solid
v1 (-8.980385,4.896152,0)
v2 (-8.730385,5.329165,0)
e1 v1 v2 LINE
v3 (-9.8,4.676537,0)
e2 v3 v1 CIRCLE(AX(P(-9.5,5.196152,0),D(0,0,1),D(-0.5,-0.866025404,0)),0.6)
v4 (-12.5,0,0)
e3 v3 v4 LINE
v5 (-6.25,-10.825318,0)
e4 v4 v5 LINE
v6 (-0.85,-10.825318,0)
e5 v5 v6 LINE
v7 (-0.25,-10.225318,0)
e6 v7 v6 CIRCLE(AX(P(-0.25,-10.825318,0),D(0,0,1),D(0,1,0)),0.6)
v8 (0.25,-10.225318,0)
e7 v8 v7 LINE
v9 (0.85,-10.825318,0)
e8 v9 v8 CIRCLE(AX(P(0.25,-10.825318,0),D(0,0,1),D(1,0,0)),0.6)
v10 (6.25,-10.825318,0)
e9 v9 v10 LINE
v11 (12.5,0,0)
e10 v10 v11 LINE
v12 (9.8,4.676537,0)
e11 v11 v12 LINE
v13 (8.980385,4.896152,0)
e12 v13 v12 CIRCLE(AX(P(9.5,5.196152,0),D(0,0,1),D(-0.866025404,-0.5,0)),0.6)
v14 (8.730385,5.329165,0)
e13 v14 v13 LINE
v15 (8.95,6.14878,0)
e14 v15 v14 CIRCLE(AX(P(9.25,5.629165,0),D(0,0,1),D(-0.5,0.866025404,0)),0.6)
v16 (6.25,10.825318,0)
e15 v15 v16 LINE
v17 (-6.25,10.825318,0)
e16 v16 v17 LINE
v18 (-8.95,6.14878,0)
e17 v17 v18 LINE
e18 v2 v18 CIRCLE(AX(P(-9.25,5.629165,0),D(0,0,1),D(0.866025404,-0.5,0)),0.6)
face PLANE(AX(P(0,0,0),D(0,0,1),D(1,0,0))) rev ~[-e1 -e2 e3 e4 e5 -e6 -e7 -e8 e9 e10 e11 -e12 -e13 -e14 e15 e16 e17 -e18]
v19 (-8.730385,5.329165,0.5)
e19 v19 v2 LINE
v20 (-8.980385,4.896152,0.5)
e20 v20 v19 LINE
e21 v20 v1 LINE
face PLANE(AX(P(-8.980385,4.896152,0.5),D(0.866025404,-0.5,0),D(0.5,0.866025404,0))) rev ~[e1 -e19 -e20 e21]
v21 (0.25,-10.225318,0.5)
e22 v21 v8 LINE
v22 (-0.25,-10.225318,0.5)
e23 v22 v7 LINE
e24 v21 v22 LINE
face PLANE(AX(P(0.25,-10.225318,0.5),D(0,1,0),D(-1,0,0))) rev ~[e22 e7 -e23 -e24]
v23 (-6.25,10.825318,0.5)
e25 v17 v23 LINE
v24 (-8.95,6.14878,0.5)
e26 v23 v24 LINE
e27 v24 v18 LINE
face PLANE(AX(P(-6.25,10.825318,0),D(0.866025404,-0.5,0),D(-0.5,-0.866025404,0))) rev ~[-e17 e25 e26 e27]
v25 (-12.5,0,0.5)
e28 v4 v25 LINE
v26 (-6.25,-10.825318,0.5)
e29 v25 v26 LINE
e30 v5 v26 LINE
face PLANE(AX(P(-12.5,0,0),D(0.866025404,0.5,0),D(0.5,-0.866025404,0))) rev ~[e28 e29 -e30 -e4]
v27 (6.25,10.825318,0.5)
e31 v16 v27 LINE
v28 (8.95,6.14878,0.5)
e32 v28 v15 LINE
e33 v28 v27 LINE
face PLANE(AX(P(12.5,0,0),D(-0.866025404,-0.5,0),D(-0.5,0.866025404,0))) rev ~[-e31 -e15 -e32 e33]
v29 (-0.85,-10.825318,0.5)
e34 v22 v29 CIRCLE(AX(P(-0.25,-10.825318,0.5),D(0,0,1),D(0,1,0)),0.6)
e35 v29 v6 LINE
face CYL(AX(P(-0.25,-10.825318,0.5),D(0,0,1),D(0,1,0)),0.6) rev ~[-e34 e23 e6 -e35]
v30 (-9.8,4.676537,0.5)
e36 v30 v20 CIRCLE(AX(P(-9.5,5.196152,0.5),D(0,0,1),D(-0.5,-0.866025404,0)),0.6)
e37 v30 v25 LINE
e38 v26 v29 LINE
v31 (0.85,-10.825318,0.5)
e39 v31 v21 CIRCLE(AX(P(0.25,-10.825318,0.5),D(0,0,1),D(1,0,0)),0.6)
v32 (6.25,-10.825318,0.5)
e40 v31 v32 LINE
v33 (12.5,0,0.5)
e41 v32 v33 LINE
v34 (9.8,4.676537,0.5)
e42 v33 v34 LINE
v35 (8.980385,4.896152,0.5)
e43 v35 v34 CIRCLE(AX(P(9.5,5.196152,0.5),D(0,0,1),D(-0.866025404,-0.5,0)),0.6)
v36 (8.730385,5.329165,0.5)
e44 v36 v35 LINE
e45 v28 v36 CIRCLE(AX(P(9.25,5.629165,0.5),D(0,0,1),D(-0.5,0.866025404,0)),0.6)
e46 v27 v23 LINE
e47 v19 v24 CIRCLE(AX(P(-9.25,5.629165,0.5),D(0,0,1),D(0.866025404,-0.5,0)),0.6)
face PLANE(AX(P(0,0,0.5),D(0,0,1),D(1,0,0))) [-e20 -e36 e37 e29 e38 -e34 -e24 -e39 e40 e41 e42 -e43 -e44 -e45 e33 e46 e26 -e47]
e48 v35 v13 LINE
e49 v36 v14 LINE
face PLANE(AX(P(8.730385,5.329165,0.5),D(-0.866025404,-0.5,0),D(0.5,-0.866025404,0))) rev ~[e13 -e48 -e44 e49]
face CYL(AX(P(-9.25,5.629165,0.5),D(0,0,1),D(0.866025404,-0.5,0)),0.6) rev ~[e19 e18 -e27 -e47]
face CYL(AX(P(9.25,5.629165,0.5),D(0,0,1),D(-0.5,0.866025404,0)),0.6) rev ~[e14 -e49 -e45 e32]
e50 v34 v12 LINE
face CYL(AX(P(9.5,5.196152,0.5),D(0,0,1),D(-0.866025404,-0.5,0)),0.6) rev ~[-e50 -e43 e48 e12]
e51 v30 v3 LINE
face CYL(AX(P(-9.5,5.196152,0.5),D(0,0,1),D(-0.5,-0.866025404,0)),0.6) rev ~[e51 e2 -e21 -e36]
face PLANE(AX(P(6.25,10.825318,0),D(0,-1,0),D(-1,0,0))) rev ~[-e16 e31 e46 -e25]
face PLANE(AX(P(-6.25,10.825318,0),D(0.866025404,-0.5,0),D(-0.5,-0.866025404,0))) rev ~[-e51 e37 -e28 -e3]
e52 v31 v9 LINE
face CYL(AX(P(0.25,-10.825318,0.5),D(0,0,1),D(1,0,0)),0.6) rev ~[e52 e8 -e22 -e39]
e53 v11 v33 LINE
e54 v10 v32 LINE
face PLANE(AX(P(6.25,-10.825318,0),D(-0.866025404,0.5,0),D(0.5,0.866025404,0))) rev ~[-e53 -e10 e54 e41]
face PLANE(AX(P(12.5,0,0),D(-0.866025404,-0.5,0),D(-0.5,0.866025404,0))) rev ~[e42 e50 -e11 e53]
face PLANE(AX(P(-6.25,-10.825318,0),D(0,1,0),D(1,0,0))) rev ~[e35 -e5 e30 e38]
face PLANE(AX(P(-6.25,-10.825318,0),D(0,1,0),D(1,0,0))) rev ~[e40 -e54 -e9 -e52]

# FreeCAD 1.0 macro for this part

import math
import FreeCAD as App
import Part
import Sketcher
Q = App.Units.Quantity

doc = App.newDocument("Part")
body = doc.addObject("PartDesign::Body", "Body")

# Sketch on XY plane
sketch1 = body.newObject("Sketcher::SketchObject", "Sketch")
sketch1.AttachmentSupport = (doc.getObject("XY_Plane"), [""])
sketch1.MapMode = "FlatFace"
sketch1.addGeometry(Part.LineSegment(App.Vector(6, -11, 0), App.Vector(12, 0, 0)), False)
sketch1.addGeometry(Part.LineSegment(App.Vector(12, 0, 0), App.Vector(6, 11, 0)), False)
sketch1.addGeometry(Part.LineSegment(App.Vector(6, 11, 0), App.Vector(-6, 11, 0)), False)
sketch1.addGeometry(Part.LineSegment(App.Vector(-6, 11, 0), App.Vector(-12, 0, 0)), False)
sketch1.addGeometry(Part.LineSegment(App.Vector(-12, 0, 0), App.Vector(-6, -11, 0)), False)
sketch1.addGeometry(Part.LineSegment(App.Vector(-6, -11, 0), App.Vector(6, -11, 0)), False)
sketch1.addConstraint(Sketcher.Constraint("Coincident", 0, 2, 1, 1))
sketch1.addConstraint(Sketcher.Constraint("Coincident", 1, 2, 2, 1))
sketch1.addConstraint(Sketcher.Constraint("Coincident", 2, 2, 3, 1))
sketch1.addConstraint(Sketcher.Constraint("Coincident", 3, 2, 4, 1))
sketch1.addConstraint(Sketcher.Constraint("Coincident", 4, 2, 5, 1))
sketch1.addConstraint(Sketcher.Constraint("Coincident", 5, 2, 0, 1))
sketch1.addConstraint(Sketcher.Constraint("Horizontal", 2))
sketch1.addConstraint(Sketcher.Constraint("Horizontal", 5))
sketch1.addConstraint(Sketcher.Constraint("Symmetric", 0, 2, 3, 2, -1, 1))
sketch1.addConstraint(Sketcher.Constraint("Symmetric", 1, 2, 4, 2, -1, 1))
sketch1.addConstraint(Sketcher.Constraint("PointOnObject", 0, 2, -1))
sketch1.addConstraint(Sketcher.Constraint("Parallel", 0, 3))
sketch1.addConstraint(Sketcher.Constraint("Vertical", 2, 2, 4, 2))
sketch1.addConstraint(Sketcher.Constraint("Angle", 0, Q("60 deg")))
sketch1.addConstraint(Sketcher.Constraint("DistanceX", 2, 2, 2, 1, Q("12.5 mm")))
sketch1.addConstraint(Sketcher.Constraint("DistanceX", 3, 2, 0, 2, Q("25 mm")))
pad1 = body.newObject("PartDesign::Pad", "Pad")
pad1.Profile = sketch1
pad1.Length = 0.5

# Sketch on XY plane
sketch2 = body.newObject("Sketcher::SketchObject", "Sketch001")
sketch2.AttachmentSupport = (doc.getObject("XY_Plane"), [""])
sketch2.MapMode = "FlatFace"
sketch2.AttachmentOffset = App.Placement(App.Vector(0, 0, 0.5), App.Rotation())
sketch2.addGeometry(Part.ArcOfCircle(Part.Circle(App.Vector(0.2, -10.8, 0), App.Vector(0, 0, 1), 0.6), math.radians(0), math.radians(90)), False)
sketch2.addGeometry(Part.LineSegment(App.Vector(0.2, -10.2, 0), App.Vector(-0.2, -10.2, 0)), False)
sketch2.addGeometry(Part.ArcOfCircle(Part.Circle(App.Vector(-0.2, -10.8, 0), App.Vector(0, 0, 1), 0.6), math.radians(90), math.radians(180)), False)
sketch2.addGeometry(Part.LineSegment(App.Vector(-0.8, -10.8, 0), App.Vector(0.8, -10.8, 0)), False)
sketch2.addGeometry(Part.LineSegment(App.Vector(8.7, 5.3, 0), App.Vector(9, 4.9, 0)), False)
sketch2.addGeometry(Part.ArcOfCircle(Part.Circle(App.Vector(9.5, 5.2, 0), App.Vector(0, 0, 1), 0.6), math.radians(-150), math.radians(-60)), False)
sketch2.addGeometry(Part.LineSegment(App.Vector(9.8, 4.7, 0), App.Vector(8.9, 6.1, 0)), False)
sketch2.addGeometry(Part.ArcOfCircle(Part.Circle(App.Vector(9.2, 5.6, 0), App.Vector(0, 0, 1), 0.6), math.radians(120), math.radians(210)), False)
sketch2.addGeometry(Part.LineSegment(App.Vector(-9, 4.9, 0), App.Vector(-8.7, 5.3, 0)), False)
sketch2.addGeometry(Part.ArcOfCircle(Part.Circle(App.Vector(-9.2, 5.6, 0), App.Vector(0, 0, 1), 0.6), math.radians(-30), math.radians(60)), False)
sketch2.addGeometry(Part.LineSegment(App.Vector(-8.9, 6.1, 0), App.Vector(-9.8, 4.7, 0)), False)
sketch2.addGeometry(Part.ArcOfCircle(Part.Circle(App.Vector(-9.5, 5.2, 0), App.Vector(0, 0, 1), 0.6), math.radians(-120), math.radians(-30)), False)
sketch2.addConstraint(Sketcher.Constraint("Tangent", 0, 2, 1, 1))
sketch2.addConstraint(Sketcher.Constraint("Tangent", 1, 2, 2, 1))
sketch2.addConstraint(Sketcher.Constraint("Coincident", 2, 2, 3, 1))
sketch2.addConstraint(Sketcher.Constraint("Coincident", 3, 2, 0, 1))
sketch2.addConstraint(Sketcher.Constraint("Tangent", 4, 2, 5, 1))
sketch2.addConstraint(Sketcher.Constraint("Coincident", 5, 2, 6, 1))
sketch2.addConstraint(Sketcher.Constraint("Coincident", 6, 2, 7, 1))
sketch2.addConstraint(Sketcher.Constraint("Tangent", 7, 2, 4, 1))
sketch2.addConstraint(Sketcher.Constraint("Tangent", 8, 2, 9, 1))
sketch2.addConstraint(Sketcher.Constraint("Coincident", 9, 2, 10, 1))
sketch2.addConstraint(Sketcher.Constraint("Coincident", 10, 2, 11, 1))
sketch2.addConstraint(Sketcher.Constraint("Tangent", 11, 2, 8, 1))
sketch2.addConstraint(Sketcher.Constraint("Horizontal", 1))
sketch2.addConstraint(Sketcher.Constraint("Horizontal", 3))
sketch2.addConstraint(Sketcher.Constraint("Equal", 0, 2))
sketch2.addConstraint(Sketcher.Constraint("Equal", 2, 5))
sketch2.addConstraint(Sketcher.Constraint("Equal", 5, 7))
sketch2.addConstraint(Sketcher.Constraint("Equal", 7, 9))
sketch2.addConstraint(Sketcher.Constraint("Equal", 9, 11))
sketch2.addConstraint(Sketcher.Constraint("Symmetric", 7, 3, 9, 3, -2))
sketch2.addConstraint(Sketcher.Constraint("Symmetric", 5, 3, 11, 3, -2))
sketch2.addConstraint(Sketcher.Constraint("Parallel", 4, 6))
sketch2.addConstraint(Sketcher.Constraint("Parallel", 8, 10))
sketch2.addConstraint(Sketcher.Constraint("Horizontal", 0, 3, 2, 2))
sketch2.addConstraint(Sketcher.Constraint("Horizontal", 6, 2, 9, 2))
sketch2.addConstraint(Sketcher.Constraint("Radius", 0, Q("0.6 mm")))
sketch2.addConstraint(Sketcher.Constraint("Angle", 4, Q("-60 deg")))
sketch2.addConstraint(Sketcher.Constraint("DistanceX", 1, 2, 1, 1, Q("0.5 mm")))
sketch2.addConstraint(Sketcher.Constraint("DistanceX", 0, 3, 7, 3, Q("9 mm")))
sketch2.addConstraint(Sketcher.Constraint("DistanceX", 9, 3, 2, 3, Q("9 mm")))
sketch2.addConstraint(Sketcher.Constraint("DistanceX", 11, 3, 5, 3, Q("19 mm")))
sketch2.addConstraint(Sketcher.Constraint("DistanceX", -1, 1, 5, 2, Q("9.8 mm")))
sketch2.addConstraint(Sketcher.Constraint("DistanceY", -1, 1, 6, 2, Q("6.14878 mm")))
sketch2.addConstraint(Sketcher.Constraint("DistanceY", 0, 3, 5, 3, Q("16.02147 mm")))
pocket1 = body.newObject("PartDesign::Pocket", "Pocket")
pocket1.Profile = sketch2
pocket1.Type = "ThroughAll"

doc.recompute()
